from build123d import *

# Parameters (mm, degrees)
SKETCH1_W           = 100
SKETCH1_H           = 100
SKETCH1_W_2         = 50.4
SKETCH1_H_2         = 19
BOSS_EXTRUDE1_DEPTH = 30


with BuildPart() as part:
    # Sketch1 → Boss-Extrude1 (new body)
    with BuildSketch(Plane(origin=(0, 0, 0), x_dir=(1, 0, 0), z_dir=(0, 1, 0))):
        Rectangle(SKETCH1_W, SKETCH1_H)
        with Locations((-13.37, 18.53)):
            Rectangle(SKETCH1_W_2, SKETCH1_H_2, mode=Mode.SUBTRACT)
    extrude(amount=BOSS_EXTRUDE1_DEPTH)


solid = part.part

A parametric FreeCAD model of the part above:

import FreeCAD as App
import Part
import Sketcher

V = App.Vector

doc = App.newDocument("Part")
params = doc.addObject("Spreadsheet::Sheet", "Params")
for row, (alias, value) in enumerate([
    ("sketch1_width", "100 mm"),
    ("sketch1_height", "19 mm"),
    ("sketch1_width2", "50.4 mm"),
    ("pad1_length", "30 mm"),
], start=1):
    params.set(f"A{row}", alias)
    params.set(f"B{row}", "=" + value)
    params.setAlias(f"B{row}", alias)

body = doc.addObject("PartDesign::Body", "Body")

# Sketch on XZ plane
sketch1 = doc.addObject("Sketcher::SketchObject", "Sketch")
body.addObject(sketch1)
sketch1.AttachmentSupport = (doc.XZ_Plane, [""])
sketch1.MapMode = "FlatFace"
sketch1.addGeometry([
    Part.LineSegment(V(-50, -50, 0), V(-50, 50, 0)),  # 0
    Part.LineSegment(V(-50, 50, 0), V(50, 50, 0)),  # 1
    Part.LineSegment(V(50, 50, 0), V(50, -50, 0)),  # 2
    Part.LineSegment(V(50, -50, 0), V(-50, -50, 0)),  # 3
    Part.LineSegment(V(11.83, -9.03, 0), V(-38.57, -9.03, 0)),  # 4
    Part.LineSegment(V(-38.57, -9.03, 0), V(-38.57, -28.03, 0)),  # 5
    Part.LineSegment(V(-38.57, -28.03, 0), V(11.83, -28.03, 0)),  # 6
    Part.LineSegment(V(11.83, -28.03, 0), V(11.83, -9.03, 0)),  # 7
], False)
sketch1.addConstraint([
    Sketcher.Constraint("Coincident", 0, 2, 1, 1),
    Sketcher.Constraint("Coincident", 1, 2, 2, 1),
    Sketcher.Constraint("Coincident", 2, 2, 3, 1),
    Sketcher.Constraint("Coincident", 3, 2, 0, 1),
    Sketcher.Constraint("Coincident", 4, 2, 5, 1),
    Sketcher.Constraint("Coincident", 5, 2, 6, 1),
    Sketcher.Constraint("Coincident", 6, 2, 7, 1),
    Sketcher.Constraint("Coincident", 7, 2, 4, 1),
    Sketcher.Constraint("Vertical", 0),
    Sketcher.Constraint("Horizontal", 1),
    Sketcher.Constraint("Vertical", 2),
    Sketcher.Constraint("Horizontal", 3),
    Sketcher.Constraint("Horizontal", 4),
    Sketcher.Constraint("Vertical", 5),
    Sketcher.Constraint("Horizontal", 6),
    Sketcher.Constraint("Vertical", 7),
    Sketcher.Constraint("Symmetric", 0, 2, 2, 2, -1, 1),
    Sketcher.Constraint("Equal", 3, 0),
    Sketcher.Constraint("DistanceX", 1, 1, 1, 2, 100.0),
    Sketcher.Constraint("DistanceY", 5, 2, 5, 1, 19.0),
    Sketcher.Constraint("DistanceX", 4, 2, 4, 1, 50.4),
    Sketcher.Constraint("DistanceX", 4, 2, -1, 1, 38.57),
    Sketcher.Constraint("DistanceY", 4, 2, -1, 1, 9.03),
])
sketch1.setExpression("Constraints[18]", "Params.sketch1_width")
sketch1.setExpression("Constraints[19]", "Params.sketch1_height")
sketch1.setExpression("Constraints[20]", "Params.sketch1_width2")
pad1 = doc.addObject("PartDesign::Pad", "Pad")
body.addObject(pad1)
pad1.Profile = sketch1
pad1.setExpression("Length", "Params.pad1_length")
pad1.Reversed = True

doc.recompute()
